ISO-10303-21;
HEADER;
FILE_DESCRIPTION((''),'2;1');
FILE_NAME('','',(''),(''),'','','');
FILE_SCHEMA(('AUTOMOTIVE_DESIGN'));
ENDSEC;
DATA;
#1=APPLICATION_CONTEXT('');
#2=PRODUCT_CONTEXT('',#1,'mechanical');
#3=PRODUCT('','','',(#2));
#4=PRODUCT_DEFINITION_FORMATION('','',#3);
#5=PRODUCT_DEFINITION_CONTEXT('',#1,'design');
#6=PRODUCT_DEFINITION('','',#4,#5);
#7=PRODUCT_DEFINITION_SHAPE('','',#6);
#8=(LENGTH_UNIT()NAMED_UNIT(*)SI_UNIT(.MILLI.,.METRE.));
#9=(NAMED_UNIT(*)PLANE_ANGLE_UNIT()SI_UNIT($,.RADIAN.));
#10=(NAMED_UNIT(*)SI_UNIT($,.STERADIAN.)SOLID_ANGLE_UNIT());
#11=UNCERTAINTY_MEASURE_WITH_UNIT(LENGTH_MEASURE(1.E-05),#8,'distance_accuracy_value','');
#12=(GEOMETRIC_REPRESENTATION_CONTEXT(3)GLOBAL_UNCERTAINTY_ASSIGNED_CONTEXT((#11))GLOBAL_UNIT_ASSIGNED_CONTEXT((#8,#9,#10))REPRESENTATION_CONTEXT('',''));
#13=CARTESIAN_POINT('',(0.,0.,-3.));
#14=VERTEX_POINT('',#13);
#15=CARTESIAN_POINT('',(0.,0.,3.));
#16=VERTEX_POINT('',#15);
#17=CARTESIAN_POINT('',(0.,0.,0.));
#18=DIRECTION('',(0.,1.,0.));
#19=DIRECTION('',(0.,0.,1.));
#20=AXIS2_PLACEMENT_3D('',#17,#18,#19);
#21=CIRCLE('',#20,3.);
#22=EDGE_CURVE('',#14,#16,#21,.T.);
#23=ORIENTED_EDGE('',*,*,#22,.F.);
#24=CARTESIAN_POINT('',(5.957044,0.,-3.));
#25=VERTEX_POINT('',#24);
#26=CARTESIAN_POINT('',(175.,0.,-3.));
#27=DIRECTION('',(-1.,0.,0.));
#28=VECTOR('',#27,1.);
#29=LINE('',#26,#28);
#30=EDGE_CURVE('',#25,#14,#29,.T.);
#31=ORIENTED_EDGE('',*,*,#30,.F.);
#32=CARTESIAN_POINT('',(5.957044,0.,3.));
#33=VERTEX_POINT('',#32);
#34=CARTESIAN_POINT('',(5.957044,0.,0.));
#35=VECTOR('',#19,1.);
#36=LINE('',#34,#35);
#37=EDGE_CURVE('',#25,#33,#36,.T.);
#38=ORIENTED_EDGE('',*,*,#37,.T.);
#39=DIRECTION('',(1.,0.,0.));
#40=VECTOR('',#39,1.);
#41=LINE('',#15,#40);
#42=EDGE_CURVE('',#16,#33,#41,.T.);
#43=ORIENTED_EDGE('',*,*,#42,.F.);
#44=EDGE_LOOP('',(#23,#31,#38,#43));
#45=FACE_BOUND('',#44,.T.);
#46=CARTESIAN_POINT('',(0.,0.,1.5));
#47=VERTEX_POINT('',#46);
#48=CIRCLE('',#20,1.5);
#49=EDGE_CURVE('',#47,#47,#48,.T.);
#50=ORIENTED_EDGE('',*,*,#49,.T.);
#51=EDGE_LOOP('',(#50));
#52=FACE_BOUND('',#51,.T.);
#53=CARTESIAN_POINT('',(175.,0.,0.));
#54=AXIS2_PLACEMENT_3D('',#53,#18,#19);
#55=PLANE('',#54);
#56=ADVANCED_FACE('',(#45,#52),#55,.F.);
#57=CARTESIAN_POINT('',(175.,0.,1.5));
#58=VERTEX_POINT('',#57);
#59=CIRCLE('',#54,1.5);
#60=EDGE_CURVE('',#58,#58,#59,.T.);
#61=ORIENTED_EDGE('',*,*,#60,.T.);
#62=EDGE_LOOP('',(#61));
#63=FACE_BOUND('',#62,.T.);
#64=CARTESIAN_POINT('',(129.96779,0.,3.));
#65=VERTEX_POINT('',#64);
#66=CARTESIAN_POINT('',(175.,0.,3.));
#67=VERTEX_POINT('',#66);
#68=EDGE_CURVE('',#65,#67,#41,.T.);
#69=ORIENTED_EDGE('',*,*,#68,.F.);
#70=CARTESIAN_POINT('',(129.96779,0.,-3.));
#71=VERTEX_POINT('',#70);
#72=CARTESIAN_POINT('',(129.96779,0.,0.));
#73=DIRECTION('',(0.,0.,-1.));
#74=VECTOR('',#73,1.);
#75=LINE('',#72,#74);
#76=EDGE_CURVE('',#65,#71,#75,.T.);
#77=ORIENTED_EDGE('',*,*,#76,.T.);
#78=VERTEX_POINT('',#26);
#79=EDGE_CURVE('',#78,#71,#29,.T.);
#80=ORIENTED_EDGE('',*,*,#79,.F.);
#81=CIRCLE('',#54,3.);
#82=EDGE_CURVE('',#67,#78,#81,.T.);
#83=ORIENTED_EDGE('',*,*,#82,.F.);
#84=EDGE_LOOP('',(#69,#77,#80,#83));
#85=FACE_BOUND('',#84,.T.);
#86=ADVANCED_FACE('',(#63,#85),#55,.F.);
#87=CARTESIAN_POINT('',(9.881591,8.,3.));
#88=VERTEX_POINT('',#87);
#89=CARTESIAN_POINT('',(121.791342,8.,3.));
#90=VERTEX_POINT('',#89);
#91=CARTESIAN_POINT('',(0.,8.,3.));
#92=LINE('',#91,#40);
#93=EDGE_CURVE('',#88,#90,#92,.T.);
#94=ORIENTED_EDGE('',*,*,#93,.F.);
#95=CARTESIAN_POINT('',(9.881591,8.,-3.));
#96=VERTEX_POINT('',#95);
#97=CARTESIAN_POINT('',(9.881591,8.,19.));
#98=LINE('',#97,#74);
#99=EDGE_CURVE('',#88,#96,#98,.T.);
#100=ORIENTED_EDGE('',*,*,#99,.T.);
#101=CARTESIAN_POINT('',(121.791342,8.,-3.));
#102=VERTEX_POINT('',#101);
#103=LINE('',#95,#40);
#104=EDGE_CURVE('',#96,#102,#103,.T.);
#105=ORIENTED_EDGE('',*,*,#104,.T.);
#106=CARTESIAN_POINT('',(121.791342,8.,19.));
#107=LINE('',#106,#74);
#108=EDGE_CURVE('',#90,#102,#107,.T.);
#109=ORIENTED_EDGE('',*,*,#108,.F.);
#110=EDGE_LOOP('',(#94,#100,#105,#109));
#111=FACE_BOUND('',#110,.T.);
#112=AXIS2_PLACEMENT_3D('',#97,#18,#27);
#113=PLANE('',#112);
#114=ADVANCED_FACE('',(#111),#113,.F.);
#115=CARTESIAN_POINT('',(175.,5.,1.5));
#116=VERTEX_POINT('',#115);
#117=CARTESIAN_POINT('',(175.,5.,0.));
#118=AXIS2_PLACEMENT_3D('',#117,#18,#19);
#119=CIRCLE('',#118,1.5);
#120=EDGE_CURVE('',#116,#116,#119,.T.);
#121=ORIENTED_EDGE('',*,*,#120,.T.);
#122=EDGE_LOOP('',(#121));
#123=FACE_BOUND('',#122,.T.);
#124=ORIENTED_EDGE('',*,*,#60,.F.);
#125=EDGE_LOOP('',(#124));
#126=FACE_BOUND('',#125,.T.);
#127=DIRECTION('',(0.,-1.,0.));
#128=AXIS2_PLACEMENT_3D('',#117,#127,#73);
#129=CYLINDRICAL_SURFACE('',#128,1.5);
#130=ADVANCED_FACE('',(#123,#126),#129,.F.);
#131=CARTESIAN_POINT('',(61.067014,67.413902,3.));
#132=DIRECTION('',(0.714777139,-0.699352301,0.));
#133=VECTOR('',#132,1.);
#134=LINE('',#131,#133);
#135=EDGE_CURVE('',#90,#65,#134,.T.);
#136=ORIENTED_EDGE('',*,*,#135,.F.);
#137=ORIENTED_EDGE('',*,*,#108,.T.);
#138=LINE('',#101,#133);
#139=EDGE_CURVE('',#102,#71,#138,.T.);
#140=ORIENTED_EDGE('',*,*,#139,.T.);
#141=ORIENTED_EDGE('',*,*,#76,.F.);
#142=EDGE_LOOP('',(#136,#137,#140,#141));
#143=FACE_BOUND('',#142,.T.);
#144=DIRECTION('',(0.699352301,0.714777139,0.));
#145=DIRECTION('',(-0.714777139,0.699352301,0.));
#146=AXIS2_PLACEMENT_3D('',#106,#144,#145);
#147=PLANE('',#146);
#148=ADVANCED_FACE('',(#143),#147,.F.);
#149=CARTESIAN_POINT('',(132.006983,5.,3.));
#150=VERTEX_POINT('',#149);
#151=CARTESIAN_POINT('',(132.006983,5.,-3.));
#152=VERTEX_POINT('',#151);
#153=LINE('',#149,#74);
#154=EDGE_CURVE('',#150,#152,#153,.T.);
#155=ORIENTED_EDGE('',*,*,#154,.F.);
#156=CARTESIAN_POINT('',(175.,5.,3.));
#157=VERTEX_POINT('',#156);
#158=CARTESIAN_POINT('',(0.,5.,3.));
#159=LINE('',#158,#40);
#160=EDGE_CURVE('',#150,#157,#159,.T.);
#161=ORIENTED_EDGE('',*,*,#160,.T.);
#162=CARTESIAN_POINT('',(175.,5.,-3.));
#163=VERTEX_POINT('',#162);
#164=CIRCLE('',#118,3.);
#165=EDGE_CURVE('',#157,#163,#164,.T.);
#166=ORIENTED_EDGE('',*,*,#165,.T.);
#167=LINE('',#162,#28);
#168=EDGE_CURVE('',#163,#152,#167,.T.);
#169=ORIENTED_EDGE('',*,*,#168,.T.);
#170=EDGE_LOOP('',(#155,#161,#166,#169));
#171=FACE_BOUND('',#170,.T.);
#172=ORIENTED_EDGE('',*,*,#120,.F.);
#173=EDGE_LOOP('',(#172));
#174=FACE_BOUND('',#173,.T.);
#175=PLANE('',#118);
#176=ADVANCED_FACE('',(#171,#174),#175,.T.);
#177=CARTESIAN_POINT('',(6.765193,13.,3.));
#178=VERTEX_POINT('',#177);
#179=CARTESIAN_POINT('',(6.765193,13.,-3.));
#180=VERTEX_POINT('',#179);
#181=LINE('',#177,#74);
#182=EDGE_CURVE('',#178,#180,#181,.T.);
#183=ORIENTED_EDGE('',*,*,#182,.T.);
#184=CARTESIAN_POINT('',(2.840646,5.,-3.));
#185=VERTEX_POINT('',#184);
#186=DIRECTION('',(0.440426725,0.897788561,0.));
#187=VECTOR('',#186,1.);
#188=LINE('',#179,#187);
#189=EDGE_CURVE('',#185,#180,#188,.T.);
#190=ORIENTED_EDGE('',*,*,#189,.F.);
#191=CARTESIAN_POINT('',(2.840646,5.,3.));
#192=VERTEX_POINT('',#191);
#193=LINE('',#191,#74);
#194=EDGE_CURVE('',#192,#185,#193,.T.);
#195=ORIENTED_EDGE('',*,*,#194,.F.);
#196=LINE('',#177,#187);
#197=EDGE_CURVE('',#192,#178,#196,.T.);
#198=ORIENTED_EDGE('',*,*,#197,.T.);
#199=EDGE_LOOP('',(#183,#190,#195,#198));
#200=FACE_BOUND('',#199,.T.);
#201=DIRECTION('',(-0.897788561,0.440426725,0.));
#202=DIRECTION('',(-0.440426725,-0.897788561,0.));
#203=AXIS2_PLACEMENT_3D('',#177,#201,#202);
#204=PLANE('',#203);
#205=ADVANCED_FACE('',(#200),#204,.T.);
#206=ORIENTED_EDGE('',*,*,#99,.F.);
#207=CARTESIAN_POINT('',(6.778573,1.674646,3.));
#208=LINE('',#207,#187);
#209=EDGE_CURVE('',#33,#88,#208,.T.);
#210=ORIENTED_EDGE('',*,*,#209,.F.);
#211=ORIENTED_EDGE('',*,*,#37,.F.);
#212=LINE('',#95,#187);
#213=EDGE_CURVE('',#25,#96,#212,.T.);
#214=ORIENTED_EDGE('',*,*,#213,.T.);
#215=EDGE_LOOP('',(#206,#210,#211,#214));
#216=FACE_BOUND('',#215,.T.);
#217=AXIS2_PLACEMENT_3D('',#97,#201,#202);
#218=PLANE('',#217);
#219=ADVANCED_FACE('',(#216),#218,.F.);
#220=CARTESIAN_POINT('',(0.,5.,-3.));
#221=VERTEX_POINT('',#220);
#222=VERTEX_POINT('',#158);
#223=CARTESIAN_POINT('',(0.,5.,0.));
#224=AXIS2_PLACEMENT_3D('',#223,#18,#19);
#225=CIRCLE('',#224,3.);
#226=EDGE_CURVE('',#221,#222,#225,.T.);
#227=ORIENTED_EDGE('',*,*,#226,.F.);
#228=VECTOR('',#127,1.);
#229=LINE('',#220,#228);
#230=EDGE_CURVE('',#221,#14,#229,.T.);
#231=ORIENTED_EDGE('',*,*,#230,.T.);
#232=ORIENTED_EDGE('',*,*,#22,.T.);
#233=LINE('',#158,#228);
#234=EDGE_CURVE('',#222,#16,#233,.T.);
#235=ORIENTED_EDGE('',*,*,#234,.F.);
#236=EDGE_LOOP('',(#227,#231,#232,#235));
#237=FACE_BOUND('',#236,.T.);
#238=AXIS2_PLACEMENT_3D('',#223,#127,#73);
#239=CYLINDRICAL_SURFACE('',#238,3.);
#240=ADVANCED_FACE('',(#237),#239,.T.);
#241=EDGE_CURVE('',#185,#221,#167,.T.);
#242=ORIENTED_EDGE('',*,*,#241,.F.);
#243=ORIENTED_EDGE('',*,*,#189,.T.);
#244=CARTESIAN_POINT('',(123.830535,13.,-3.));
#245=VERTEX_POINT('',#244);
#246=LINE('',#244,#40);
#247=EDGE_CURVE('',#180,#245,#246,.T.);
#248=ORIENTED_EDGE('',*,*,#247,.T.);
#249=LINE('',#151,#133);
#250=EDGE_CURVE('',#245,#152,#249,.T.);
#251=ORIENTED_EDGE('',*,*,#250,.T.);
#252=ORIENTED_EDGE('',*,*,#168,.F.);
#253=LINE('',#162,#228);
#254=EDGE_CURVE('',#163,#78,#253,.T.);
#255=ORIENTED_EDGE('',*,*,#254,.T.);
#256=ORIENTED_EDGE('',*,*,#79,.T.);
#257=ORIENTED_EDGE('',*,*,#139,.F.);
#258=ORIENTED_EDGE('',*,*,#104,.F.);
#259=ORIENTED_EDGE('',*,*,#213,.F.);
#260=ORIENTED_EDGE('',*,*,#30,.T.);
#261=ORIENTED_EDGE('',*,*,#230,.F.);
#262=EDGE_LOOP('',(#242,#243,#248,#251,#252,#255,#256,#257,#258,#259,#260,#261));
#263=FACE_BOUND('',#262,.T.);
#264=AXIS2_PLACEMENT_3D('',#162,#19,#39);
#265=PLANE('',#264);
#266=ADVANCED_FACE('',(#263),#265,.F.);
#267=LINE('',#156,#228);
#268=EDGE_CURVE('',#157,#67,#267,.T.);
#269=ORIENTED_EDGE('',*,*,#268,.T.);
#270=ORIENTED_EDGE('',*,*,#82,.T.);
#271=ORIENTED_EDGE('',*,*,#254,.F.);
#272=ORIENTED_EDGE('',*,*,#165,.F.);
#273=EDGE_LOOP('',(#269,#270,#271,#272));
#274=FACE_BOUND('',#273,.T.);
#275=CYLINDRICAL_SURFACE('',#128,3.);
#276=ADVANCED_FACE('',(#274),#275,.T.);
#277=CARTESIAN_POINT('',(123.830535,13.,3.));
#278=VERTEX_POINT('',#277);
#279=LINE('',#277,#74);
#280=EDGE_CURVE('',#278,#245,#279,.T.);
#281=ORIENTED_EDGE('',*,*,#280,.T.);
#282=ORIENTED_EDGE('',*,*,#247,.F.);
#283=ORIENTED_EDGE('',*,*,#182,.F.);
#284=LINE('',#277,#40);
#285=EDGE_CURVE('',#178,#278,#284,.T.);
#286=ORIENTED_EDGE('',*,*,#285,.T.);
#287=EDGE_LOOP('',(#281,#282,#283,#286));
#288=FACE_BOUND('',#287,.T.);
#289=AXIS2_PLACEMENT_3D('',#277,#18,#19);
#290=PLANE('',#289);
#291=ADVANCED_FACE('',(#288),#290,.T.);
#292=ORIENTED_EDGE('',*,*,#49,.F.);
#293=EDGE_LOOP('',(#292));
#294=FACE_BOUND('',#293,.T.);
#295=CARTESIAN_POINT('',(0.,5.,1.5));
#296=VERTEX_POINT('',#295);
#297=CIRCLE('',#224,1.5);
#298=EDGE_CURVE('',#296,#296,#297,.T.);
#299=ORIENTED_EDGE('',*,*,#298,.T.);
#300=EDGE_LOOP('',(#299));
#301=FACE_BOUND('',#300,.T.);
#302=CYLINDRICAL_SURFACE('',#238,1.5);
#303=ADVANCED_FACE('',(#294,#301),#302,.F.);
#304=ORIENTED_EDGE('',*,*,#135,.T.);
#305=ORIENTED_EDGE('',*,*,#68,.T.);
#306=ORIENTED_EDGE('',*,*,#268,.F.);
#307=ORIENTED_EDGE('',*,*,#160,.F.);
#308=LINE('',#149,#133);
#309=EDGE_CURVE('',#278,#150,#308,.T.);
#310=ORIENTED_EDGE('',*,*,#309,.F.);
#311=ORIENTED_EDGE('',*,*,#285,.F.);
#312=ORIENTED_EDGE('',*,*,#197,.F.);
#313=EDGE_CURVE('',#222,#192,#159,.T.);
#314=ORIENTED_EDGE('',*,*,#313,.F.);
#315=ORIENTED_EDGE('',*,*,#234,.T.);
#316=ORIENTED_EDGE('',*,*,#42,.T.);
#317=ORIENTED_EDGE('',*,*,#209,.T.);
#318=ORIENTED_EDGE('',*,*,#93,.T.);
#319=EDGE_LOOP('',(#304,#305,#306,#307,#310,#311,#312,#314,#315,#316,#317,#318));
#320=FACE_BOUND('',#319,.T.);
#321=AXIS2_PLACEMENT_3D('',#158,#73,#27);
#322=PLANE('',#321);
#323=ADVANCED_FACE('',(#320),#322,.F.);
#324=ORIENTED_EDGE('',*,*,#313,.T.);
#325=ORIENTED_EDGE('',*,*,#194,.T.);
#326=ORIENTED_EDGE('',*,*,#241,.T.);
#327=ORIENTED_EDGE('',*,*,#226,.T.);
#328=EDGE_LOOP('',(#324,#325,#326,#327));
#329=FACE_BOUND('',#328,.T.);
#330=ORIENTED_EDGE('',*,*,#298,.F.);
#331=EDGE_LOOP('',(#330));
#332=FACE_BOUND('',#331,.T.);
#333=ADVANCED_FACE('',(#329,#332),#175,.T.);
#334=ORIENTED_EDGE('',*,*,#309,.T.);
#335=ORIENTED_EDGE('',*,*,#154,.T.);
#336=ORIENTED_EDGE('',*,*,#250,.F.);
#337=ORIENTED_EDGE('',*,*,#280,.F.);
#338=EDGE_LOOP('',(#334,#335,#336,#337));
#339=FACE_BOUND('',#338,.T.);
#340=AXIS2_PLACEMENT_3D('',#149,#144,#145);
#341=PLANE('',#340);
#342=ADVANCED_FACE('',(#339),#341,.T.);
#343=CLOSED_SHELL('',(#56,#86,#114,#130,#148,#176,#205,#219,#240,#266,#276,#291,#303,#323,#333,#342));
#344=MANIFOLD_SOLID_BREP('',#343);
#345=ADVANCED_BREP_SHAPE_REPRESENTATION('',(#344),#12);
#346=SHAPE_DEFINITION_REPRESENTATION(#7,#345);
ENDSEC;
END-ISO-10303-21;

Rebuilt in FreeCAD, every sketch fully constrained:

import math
import FreeCAD as App
import Part
import Sketcher

V = App.Vector
Q = App.Units.Quantity


def add_polygon(sketch, points):
    """Adds a closed chain of lines whose ends are joined by coincident constraints."""
    first, n = sketch.GeometryCount, len(points)
    for a, b in zip(points, points[1:] + points[:1]):
        sketch.addGeometry(Part.LineSegment(App.Vector(*a, 0), App.Vector(*b, 0)), False)
    for i in range(n):
        sketch.addConstraint(Sketcher.Constraint("Coincident", first + i, 2, first + (i + 1) % n, 1))

doc = App.newDocument("Part")
body = doc.addObject("PartDesign::Body", "Body")

sketch1 = body.newObject("Sketcher::SketchObject", "Sketch")
sketch1.AttachmentSupport = (doc.getObject("XZ_Plane"), [""])
sketch1.MapMode = "FlatFace"
sketch1.addGeometry([
    Part.LineSegment(V(175, -3, 0), V(0, -3, 0)),
    Part.ArcOfCircle(Part.Circle(V(0, 0, 0), V(0, 0, 1), 3), math.radians(90), math.radians(270)),
    Part.LineSegment(V(0, 3, 0), V(175, 3, 0)),
    Part.ArcOfCircle(Part.Circle(V(175, 0, 0), V(0, 0, 1), 3), math.radians(-90), math.radians(90)),
    Part.Circle(V(0, 0, 0), V(0, 0, 1), 1.5),
    Part.Circle(V(175, 0, 0), V(0, 0, 1), 1.5),
], False)
sketch1.addConstraint([
    Sketcher.Constraint("Tangent", 0, 2, 1, 2),
    Sketcher.Constraint("Tangent", 1, 1, 2, 1),
    Sketcher.Constraint("Tangent", 2, 2, 3, 2),
    Sketcher.Constraint("Tangent", 3, 1, 0, 1),
    Sketcher.Constraint("Horizontal", 0),
    Sketcher.Constraint("Horizontal", 2),
    Sketcher.Constraint("Coincident", 1, 3, -1, 1),
    Sketcher.Constraint("Coincident", 4, 3, -1, 1),
    Sketcher.Constraint("Coincident", 5, 3, 3, 3),
    Sketcher.Constraint("Equal", 4, 5),
    Sketcher.Constraint("Diameter", 4, Q("3 mm")),
    Sketcher.Constraint("Radius", 1, Q("3 mm")),
    Sketcher.Constraint("DistanceX", 0, 2, 0, 1, Q("175 mm")),
])
pad1 = body.newObject("PartDesign::Pad", "Pad")
pad1.Profile = sketch1
pad1.Length = 5
pad1.Reversed = True

sketch2 = body.newObject("Sketcher::SketchObject", "Sketch001")
sketch2.AttachmentSupport = (doc.getObject("XY_Plane"), [""])
sketch2.MapMode = "FlatFace"
sketch2.AttachmentOffset = App.Placement(V(0, 0, -3), App.Rotation())
add_polygon(sketch2, [(124, 13), (132, 5), (3, 5), (7, 13)])
sketch2.addConstraint([
    Sketcher.Constraint("Horizontal", 1),
    Sketcher.Constraint("Horizontal", 3),
    Sketcher.Constraint("DistanceY", -1, 1, 0, 2, Q("5 mm")),
    Sketcher.Constraint("DistanceY", -1, 1, 2, 2, Q("13 mm")),
    Sketcher.Constraint("DistanceX", 3, 1, 3, 2, Q("117.065342 mm")),
    Sketcher.Constraint("DistanceX", 1, 2, 1, 1, Q("129.166336 mm")),
    Sketcher.Constraint("DistanceX", 2, 2, 0, 2, Q("125.241789 mm")),
    Sketcher.Constraint("DistanceX", -1, 1, 0, 2, Q("132.006983 mm")),
])
pad2 = body.newObject("PartDesign::Pad", "Pad001")
pad2.Profile = sketch2
pad2.Length = 6

sketch3 = body.newObject("Sketcher::SketchObject", "Sketch002")
sketch3.AttachmentSupport = (doc.getObject("XY_Plane"), [""])
sketch3.MapMode = "FlatFace"
sketch3.AttachmentOffset = App.Placement(V(0, 0, -3), App.Rotation())
add_polygon(sketch3, [(3, -6), (10, 8), (122, 8), (136, -6), (63, -7)])
sketch3.addConstraint([
    Sketcher.Constraint("Horizontal", 1),
    Sketcher.Constraint("DistanceY", -1, 1, 0, 2, Q("8 mm")),
    Sketcher.Constraint("DistanceX", 1, 1, 1, 2, Q("111.909751 mm")),
    Sketcher.Constraint("DistanceX", 0, 2, 3, 2, Q("53.4569 mm")),
    Sketcher.Constraint("DistanceX", 4, 2, 2, 2, Q("133.157298 mm")),
    Sketcher.Constraint("Distance", 4, Q("60.24778 mm")),
    Sketcher.Constraint("DistanceX", -1, 1, 0, 2, Q("9.881591 mm")),
    Sketcher.Constraint("DistanceX", -1, 1, 2, 2, Q("136.266049 mm")),
    Sketcher.Constraint("DistanceY", 3, 2, -1, 1, Q("7.280351 mm")),
    Sketcher.Constraint("Distance", 2, Q("20.250657 mm")),
])
pocket1 = body.newObject("PartDesign::Pocket", "Pocket")
pocket1.Profile = sketch3
pocket1.Length = 22
pocket1.Reversed = True

doc.recompute()
